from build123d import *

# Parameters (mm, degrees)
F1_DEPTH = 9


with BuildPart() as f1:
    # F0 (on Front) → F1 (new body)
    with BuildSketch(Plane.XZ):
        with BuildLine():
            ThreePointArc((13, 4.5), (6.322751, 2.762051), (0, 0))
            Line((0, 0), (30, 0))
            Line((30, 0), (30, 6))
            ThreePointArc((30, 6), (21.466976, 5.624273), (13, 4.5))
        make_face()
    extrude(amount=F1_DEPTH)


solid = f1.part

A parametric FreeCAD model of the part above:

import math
import FreeCAD as App
import Part
import Sketcher
from FreeCAD import Vector
Q = App.Units.Quantity

doc = App.newDocument("Part")
body = doc.addObject("PartDesign::Body", "Body")

# Sketch on XZ plane
sketch1 = body.newObject("Sketcher::SketchObject", "Sketch")
sketch1.AttachmentSupport = (doc.getObject("XZ_Plane"), [""])
sketch1.MapMode = "FlatFace"
sketch1.addGeometry([
    Part.ArcOfCircle(Part.Circle(Vector(21, -39, 0), Vector(0, 0, 1), 44), math.radians(100.08), math.radians(118.1)),
    Part.LineSegment(Vector(0, 0, 0), Vector(30, 0, 0)),
    Part.LineSegment(Vector(30, 0, 0), Vector(30, 6, 0)),
    Part.ArcOfCircle(Part.Circle(Vector(30, -91, 0), Vector(0, 0, 1), 97), math.radians(90), math.radians(100.08)),
], False)
sketch1.addConstraint([
    Sketcher.Constraint("Coincident", 0, 2, 1, 1),
    Sketcher.Constraint("Coincident", 1, 2, 2, 1),
    Sketcher.Constraint("Coincident", 2, 2, 3, 1),
    Sketcher.Constraint("Tangent", 3, 2, 0, 1),
    Sketcher.Constraint("Horizontal", 1),
    Sketcher.Constraint("Vertical", 2),
    Sketcher.Constraint("Coincident", 0, 2, -1, 1),
    Sketcher.Constraint("Vertical", 3, 3, 1, 2),
    Sketcher.Constraint("DistanceX", 1, 1, 1, 2, Q("30 mm")),
    Sketcher.Constraint("DistanceY", 2, 1, 2, 2, Q("6 mm")),
    Sketcher.Constraint("DistanceX", -1, 1, 3, 2, Q("13 mm")),
    Sketcher.Constraint("Radius", 3, Q("97.08332 mm")),
])
pad1 = body.newObject("PartDesign::Pad", "Pad")
pad1.Profile = sketch1
pad1.Length = 9

doc.recompute()
